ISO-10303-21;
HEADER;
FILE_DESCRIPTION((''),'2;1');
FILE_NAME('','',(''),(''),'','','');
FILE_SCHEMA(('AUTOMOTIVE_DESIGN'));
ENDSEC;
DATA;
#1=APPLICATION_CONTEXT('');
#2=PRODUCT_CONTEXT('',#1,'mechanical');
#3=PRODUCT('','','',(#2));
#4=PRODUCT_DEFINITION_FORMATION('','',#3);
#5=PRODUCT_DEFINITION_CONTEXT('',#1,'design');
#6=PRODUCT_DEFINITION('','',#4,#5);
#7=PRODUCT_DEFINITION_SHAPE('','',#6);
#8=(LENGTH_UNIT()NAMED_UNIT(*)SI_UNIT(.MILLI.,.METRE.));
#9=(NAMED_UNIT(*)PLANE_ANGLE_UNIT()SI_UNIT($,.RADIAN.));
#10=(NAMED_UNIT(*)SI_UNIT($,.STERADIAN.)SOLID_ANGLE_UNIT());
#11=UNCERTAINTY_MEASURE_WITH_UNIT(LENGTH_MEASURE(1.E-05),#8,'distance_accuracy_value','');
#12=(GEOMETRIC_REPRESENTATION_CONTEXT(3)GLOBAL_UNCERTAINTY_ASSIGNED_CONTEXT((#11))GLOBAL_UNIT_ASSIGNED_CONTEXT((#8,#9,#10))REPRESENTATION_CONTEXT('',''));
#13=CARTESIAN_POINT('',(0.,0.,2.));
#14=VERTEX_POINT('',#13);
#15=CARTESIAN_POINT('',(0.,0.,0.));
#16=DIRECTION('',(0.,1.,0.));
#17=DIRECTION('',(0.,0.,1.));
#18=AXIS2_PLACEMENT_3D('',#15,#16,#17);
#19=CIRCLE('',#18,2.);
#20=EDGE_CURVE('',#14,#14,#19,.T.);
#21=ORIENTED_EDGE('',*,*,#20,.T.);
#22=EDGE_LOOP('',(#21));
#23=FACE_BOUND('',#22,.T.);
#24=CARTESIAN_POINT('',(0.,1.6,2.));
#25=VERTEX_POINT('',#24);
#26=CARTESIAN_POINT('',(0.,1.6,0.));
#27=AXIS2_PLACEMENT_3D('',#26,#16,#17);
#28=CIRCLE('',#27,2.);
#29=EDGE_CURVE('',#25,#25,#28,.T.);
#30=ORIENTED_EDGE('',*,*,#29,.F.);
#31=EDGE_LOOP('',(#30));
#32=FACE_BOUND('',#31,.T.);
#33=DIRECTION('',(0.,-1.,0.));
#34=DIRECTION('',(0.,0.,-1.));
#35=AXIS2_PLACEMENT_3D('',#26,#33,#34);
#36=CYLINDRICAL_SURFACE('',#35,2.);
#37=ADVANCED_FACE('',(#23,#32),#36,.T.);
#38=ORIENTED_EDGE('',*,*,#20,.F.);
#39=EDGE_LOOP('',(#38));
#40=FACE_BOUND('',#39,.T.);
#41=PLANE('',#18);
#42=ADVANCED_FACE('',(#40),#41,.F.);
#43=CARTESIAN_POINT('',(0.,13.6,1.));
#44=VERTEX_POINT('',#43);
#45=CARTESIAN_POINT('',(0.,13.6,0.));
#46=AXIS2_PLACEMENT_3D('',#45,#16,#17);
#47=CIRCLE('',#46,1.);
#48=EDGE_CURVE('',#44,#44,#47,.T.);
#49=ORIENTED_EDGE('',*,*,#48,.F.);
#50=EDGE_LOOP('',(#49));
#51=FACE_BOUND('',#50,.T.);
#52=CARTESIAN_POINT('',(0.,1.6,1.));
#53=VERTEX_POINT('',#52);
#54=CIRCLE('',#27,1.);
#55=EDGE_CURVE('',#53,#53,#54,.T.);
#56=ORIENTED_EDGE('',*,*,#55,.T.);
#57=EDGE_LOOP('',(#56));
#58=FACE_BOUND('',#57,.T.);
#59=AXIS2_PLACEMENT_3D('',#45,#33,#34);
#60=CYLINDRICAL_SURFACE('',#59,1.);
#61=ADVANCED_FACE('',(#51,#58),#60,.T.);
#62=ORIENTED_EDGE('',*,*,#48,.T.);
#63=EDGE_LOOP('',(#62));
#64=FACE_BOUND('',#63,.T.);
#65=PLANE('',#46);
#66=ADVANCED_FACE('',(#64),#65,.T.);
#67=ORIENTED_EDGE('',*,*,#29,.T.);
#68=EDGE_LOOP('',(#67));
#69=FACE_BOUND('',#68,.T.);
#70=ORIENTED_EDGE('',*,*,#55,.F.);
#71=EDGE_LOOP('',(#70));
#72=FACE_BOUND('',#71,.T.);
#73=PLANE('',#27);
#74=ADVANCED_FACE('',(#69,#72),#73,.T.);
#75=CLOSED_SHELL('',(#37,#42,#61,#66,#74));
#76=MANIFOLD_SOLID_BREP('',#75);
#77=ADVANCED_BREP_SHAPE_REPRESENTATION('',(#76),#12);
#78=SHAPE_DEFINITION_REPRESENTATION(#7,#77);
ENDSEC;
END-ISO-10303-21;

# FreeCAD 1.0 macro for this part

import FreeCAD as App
import Part
import Sketcher

V = App.Vector
Q = App.Units.Quantity

doc = App.newDocument("Part")
body = doc.addObject("PartDesign::Body", "Body")

sketch1 = body.newObject("Sketcher::SketchObject", "Sketch")
sketch1.AttachmentSupport = (doc.getObject("XZ_Plane"), [""])
sketch1.MapMode = "FlatFace"
sketch1.addGeometry(Part.Circle(V(0, 0, 0), V(0, 0, 1), 2), False)
sketch1.addConstraint(Sketcher.Constraint("Coincident", 0, 3, -1, 1))
sketch1.addConstraint(Sketcher.Constraint("Diameter", 0, Q("4 mm")))
pad1 = body.newObject("PartDesign::Pad", "Pad")
pad1.Profile = sketch1
pad1.Length = 1.6
pad1.Reversed = True

sketch2 = body.newObject("Sketcher::SketchObject", "Sketch001")
sketch2.AttachmentSupport = (doc.getObject("XZ_Plane"), [""])
sketch2.MapMode = "FlatFace"
sketch2.AttachmentOffset = App.Placement(V(0, 0, -1.6), App.Rotation())
sketch2.addGeometry(Part.Circle(V(0, 0, 0), V(0, 0, 1), 1), False)
sketch2.addConstraint(Sketcher.Constraint("Coincident", 0, 3, -1, 1))
sketch2.addConstraint(Sketcher.Constraint("Diameter", 0, Q("2 mm")))
pad2 = body.newObject("PartDesign::Pad", "Pad001")
pad2.Profile = sketch2
pad2.Length = 12
pad2.Reversed = True

doc.recompute()
